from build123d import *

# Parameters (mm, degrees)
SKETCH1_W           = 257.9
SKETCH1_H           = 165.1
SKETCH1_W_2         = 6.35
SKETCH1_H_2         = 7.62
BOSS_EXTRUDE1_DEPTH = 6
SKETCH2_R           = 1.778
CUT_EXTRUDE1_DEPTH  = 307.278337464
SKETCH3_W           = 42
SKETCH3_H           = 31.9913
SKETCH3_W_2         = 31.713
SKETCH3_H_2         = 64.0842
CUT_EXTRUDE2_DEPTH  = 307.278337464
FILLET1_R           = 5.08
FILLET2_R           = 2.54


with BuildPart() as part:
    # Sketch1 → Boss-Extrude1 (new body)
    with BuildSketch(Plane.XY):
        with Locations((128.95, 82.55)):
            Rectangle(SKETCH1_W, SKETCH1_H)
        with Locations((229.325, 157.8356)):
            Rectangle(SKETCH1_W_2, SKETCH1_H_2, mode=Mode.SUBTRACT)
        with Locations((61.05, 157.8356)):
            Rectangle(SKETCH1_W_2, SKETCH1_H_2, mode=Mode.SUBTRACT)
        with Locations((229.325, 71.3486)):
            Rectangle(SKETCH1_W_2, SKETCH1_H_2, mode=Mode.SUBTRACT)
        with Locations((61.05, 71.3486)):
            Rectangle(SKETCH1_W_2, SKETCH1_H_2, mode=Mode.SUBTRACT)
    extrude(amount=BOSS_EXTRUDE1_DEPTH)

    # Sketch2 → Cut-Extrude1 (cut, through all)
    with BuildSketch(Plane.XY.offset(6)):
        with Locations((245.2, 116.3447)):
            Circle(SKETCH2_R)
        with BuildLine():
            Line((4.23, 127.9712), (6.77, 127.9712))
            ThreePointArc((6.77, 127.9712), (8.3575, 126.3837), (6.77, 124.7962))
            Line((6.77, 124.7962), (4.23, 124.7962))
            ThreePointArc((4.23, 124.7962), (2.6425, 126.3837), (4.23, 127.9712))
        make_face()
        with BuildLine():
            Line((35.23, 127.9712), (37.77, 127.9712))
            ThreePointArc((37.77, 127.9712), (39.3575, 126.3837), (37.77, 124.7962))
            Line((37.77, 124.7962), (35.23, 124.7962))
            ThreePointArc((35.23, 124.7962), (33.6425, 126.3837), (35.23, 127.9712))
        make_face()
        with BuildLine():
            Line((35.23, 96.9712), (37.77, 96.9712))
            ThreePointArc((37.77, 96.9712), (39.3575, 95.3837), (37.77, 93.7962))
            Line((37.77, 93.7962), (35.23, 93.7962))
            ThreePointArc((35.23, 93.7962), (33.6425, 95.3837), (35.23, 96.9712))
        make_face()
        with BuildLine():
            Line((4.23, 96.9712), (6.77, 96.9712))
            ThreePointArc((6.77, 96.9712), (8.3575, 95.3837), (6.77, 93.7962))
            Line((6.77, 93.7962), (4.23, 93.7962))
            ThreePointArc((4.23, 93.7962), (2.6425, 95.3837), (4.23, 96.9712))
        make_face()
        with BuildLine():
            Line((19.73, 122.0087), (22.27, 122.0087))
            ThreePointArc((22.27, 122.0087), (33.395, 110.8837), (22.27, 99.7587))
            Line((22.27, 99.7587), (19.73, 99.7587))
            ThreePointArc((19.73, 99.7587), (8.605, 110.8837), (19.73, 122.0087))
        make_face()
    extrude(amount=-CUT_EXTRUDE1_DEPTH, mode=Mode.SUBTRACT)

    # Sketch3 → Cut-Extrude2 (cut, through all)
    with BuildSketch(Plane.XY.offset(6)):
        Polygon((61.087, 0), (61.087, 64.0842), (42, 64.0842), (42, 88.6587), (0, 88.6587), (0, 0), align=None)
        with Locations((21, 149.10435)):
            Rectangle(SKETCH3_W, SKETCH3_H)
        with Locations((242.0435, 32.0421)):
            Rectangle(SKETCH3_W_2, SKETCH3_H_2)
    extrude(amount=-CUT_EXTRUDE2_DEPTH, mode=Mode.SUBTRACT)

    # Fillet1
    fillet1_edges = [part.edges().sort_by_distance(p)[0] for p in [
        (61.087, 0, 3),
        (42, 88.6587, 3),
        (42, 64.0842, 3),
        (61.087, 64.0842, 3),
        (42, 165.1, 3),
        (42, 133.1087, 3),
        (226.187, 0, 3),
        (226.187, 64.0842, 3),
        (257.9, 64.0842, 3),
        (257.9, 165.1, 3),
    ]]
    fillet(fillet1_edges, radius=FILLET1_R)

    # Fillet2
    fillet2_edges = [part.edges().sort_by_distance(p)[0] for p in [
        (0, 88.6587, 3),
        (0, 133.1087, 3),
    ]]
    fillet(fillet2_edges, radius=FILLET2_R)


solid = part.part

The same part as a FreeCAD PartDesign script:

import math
import FreeCAD as App
import Part
import Sketcher

V = App.Vector
Q = App.Units.Quantity


def edges_at(feature, points):
    """Names of the edges that pass closest to the given points."""
    edges = feature.Shape.Edges
    near = lambda p: min(range(len(edges)), key=lambda i: edges[i].distToShape(Part.Vertex(*p))[0])
    return sorted({f"Edge{near(p) + 1}" for p in points})

doc = App.newDocument("Part")
body = doc.addObject("PartDesign::Body", "Body")

# Sketch on XY plane
sketch1 = body.newObject("Sketcher::SketchObject", "Sketch")
sketch1.AttachmentSupport = (doc.getObject("XY_Plane"), [""])
sketch1.MapMode = "FlatFace"
sketch1.addGeometry([
    Part.LineSegment(V(0, 165, 0), V(0, 0, 0)),  # 0
    Part.LineSegment(V(0, 0, 0), V(258, 0, 0)),  # 1
    Part.LineSegment(V(258, 0, 0), V(258, 165, 0)),  # 2
    Part.LineSegment(V(258, 165, 0), V(0, 165, 0)),  # 3
    Part.LineSegment(V(64, 68, 0), V(58, 68, 0)),  # 4
    Part.LineSegment(V(58, 68, 0), V(58, 75, 0)),  # 5
    Part.LineSegment(V(58, 75, 0), V(64, 75, 0)),  # 6
    Part.LineSegment(V(64, 75, 0), V(64, 68, 0)),  # 7
    Part.LineSegment(V(232, 68, 0), V(226, 68, 0)),  # 8
    Part.LineSegment(V(226, 68, 0), V(226, 75, 0)),  # 9
    Part.LineSegment(V(226, 75, 0), V(232, 75, 0)),  # 10
    Part.LineSegment(V(232, 75, 0), V(232, 68, 0)),  # 11
    Part.LineSegment(V(64, 154, 0), V(58, 154, 0)),  # 12
    Part.LineSegment(V(58, 154, 0), V(58, 162, 0)),  # 13
    Part.LineSegment(V(58, 162, 0), V(64, 162, 0)),  # 14
    Part.LineSegment(V(64, 162, 0), V(64, 154, 0)),  # 15
    Part.LineSegment(V(232, 154, 0), V(226, 154, 0)),  # 16
    Part.LineSegment(V(226, 154, 0), V(226, 162, 0)),  # 17
    Part.LineSegment(V(226, 162, 0), V(232, 162, 0)),  # 18
    Part.LineSegment(V(232, 162, 0), V(232, 154, 0)),  # 19
], False)
sketch1.addConstraint([
    Sketcher.Constraint("Coincident", 0, 2, 1, 1),
    Sketcher.Constraint("Coincident", 1, 2, 2, 1),
    Sketcher.Constraint("Coincident", 2, 2, 3, 1),
    Sketcher.Constraint("Coincident", 3, 2, 0, 1),
    Sketcher.Constraint("Coincident", 4, 2, 5, 1),
    Sketcher.Constraint("Coincident", 5, 2, 6, 1),
    Sketcher.Constraint("Coincident", 6, 2, 7, 1),
    Sketcher.Constraint("Coincident", 7, 2, 4, 1),
    Sketcher.Constraint("Coincident", 8, 2, 9, 1),
    Sketcher.Constraint("Coincident", 9, 2, 10, 1),
    Sketcher.Constraint("Coincident", 10, 2, 11, 1),
    Sketcher.Constraint("Coincident", 11, 2, 8, 1),
    Sketcher.Constraint("Coincident", 12, 2, 13, 1),
    Sketcher.Constraint("Coincident", 13, 2, 14, 1),
    Sketcher.Constraint("Coincident", 14, 2, 15, 1),
    Sketcher.Constraint("Coincident", 15, 2, 12, 1),
    Sketcher.Constraint("Coincident", 16, 2, 17, 1),
    Sketcher.Constraint("Coincident", 17, 2, 18, 1),
    Sketcher.Constraint("Coincident", 18, 2, 19, 1),
    Sketcher.Constraint("Coincident", 19, 2, 16, 1),
    Sketcher.Constraint("Vertical", 0),
    Sketcher.Constraint("Horizontal", 1),
    Sketcher.Constraint("Vertical", 2),
    Sketcher.Constraint("Horizontal", 3),
    Sketcher.Constraint("Horizontal", 4),
    Sketcher.Constraint("Vertical", 5),
    Sketcher.Constraint("Horizontal", 6),
    Sketcher.Constraint("Vertical", 7),
    Sketcher.Constraint("Horizontal", 8),
    Sketcher.Constraint("Vertical", 9),
    Sketcher.Constraint("Horizontal", 10),
    Sketcher.Constraint("Vertical", 11),
    Sketcher.Constraint("Horizontal", 12),
    Sketcher.Constraint("Vertical", 13),
    Sketcher.Constraint("Horizontal", 14),
    Sketcher.Constraint("Vertical", 15),
    Sketcher.Constraint("Horizontal", 16),
    Sketcher.Constraint("Vertical", 17),
    Sketcher.Constraint("Horizontal", 18),
    Sketcher.Constraint("Vertical", 19),
    Sketcher.Constraint("Coincident", 0, 2, -1, 1),
    Sketcher.Constraint("Horizontal", 7, 2, 8, 2),
    Sketcher.Constraint("Horizontal", 6, 2, 9, 2),
    Sketcher.Constraint("Horizontal", 15, 2, 16, 2),
    Sketcher.Constraint("Horizontal", 14, 2, 17, 2),
    Sketcher.Constraint("Vertical", 5, 2, 12, 2),
    Sketcher.Constraint("Vertical", 7, 2, 14, 2),
    Sketcher.Constraint("Vertical", 9, 2, 16, 2),
    Sketcher.Constraint("Vertical", 11, 2, 18, 2),
    Sketcher.Constraint("Equal", 6, 8),
    Sketcher.Constraint("Equal", 11, 13),
    Sketcher.Constraint("DistanceY", 0, 2, 0, 1, Q("6.5 in")),
    Sketcher.Constraint("DistanceY", 5, 1, 5, 2, Q("0.3 in")),
    Sketcher.Constraint("DistanceX", 10, 2, 1, 2, Q("1 in")),
    Sketcher.Constraint("DistanceX", 4, 2, 4, 1, Q("0.25 in")),
    Sketcher.Constraint("DistanceY", -1, 1, 4, 2, Q("2.659 in")),
    Sketcher.Constraint("DistanceY", -1, 1, 12, 2, Q("6.064 in")),
    Sketcher.Constraint("DistanceX", 4, 2, 1, 2, Q("7.875 in")),
    Sketcher.Constraint("DistanceX", 1, 1, 1, 2, 257.9),
])
pad1 = body.newObject("PartDesign::Pad", "Pad")
pad1.Profile = sketch1
pad1.Length = 6

# Sketch on XY plane
sketch2 = body.newObject("Sketcher::SketchObject", "Sketch001")
sketch2.AttachmentSupport = (doc.getObject("XY_Plane"), [""])
sketch2.MapMode = "FlatFace"
sketch2.AttachmentOffset = App.Placement(V(0, 0, 6), App.Rotation())
sketch2.addGeometry([
    Part.Circle(V(245.2, 116.3, 0), V(0, 0, 1), 1.8),  # 0
    Part.LineSegment(V(6.8, 128, 0), V(4.2, 128, 0)),  # 1
    Part.ArcOfCircle(Part.Circle(V(4.2, 126.4, 0), V(0, 0, 1), 1.6), math.radians(90), math.radians(270)),  # 2
    Part.LineSegment(V(4.2, 124.8, 0), V(6.8, 124.8, 0)),  # 3
    Part.ArcOfCircle(Part.Circle(V(6.8, 126.4, 0), V(0, 0, 1), 1.6), math.radians(-90), math.radians(90)),  # 4
    Part.LineSegment(V(37.8, 128, 0), V(35.2, 128, 0)),  # 5
    Part.ArcOfCircle(Part.Circle(V(35.2, 126.4, 0), V(0, 0, 1), 1.6), math.radians(90), math.radians(270)),  # 6
    Part.LineSegment(V(35.2, 124.8, 0), V(37.8, 124.8, 0)),  # 7
    Part.ArcOfCircle(Part.Circle(V(37.8, 126.4, 0), V(0, 0, 1), 1.6), math.radians(-90), math.radians(90)),  # 8
    Part.LineSegment(V(37.8, 97, 0), V(35.2, 97, 0)),  # 9
    Part.ArcOfCircle(Part.Circle(V(35.2, 95.4, 0), V(0, 0, 1), 1.6), math.radians(90), math.radians(270)),  # 10
    Part.LineSegment(V(35.2, 93.8, 0), V(37.8, 93.8, 0)),  # 11
    Part.ArcOfCircle(Part.Circle(V(37.8, 95.4, 0), V(0, 0, 1), 1.6), math.radians(-90), math.radians(90)),  # 12
    Part.LineSegment(V(6.8, 97, 0), V(4.2, 97, 0)),  # 13
    Part.ArcOfCircle(Part.Circle(V(4.2, 95.4, 0), V(0, 0, 1), 1.6), math.radians(90), math.radians(270)),  # 14
    Part.LineSegment(V(4.2, 93.8, 0), V(6.8, 93.8, 0)),  # 15
    Part.ArcOfCircle(Part.Circle(V(6.8, 95.4, 0), V(0, 0, 1), 1.6), math.radians(-90), math.radians(90)),  # 16
    Part.LineSegment(V(22.3, 122, 0), V(19.7, 122, 0)),  # 17
    Part.ArcOfCircle(Part.Circle(V(19.7, 110.9, 0), V(0, 0, 1), 11.1), math.radians(90), math.radians(270)),  # 18
    Part.LineSegment(V(19.7, 99.8, 0), V(22.3, 99.8, 0)),  # 19
    Part.ArcOfCircle(Part.Circle(V(22.3, 110.9, 0), V(0, 0, 1), 11.1), math.radians(-90), math.radians(90)),  # 20
], False)
sketch2.addConstraint([
    Sketcher.Constraint("Tangent", 1, 2, 2, 1),
    Sketcher.Constraint("Tangent", 2, 2, 3, 1),
    Sketcher.Constraint("Tangent", 3, 2, 4, 1),
    Sketcher.Constraint("Tangent", 4, 2, 1, 1),
    Sketcher.Constraint("Tangent", 5, 2, 6, 1),
    Sketcher.Constraint("Tangent", 6, 2, 7, 1),
    Sketcher.Constraint("Tangent", 7, 2, 8, 1),
    Sketcher.Constraint("Tangent", 8, 2, 5, 1),
    Sketcher.Constraint("Tangent", 9, 2, 10, 1),
    Sketcher.Constraint("Tangent", 10, 2, 11, 1),
    Sketcher.Constraint("Tangent", 11, 2, 12, 1),
    Sketcher.Constraint("Tangent", 12, 2, 9, 1),
    Sketcher.Constraint("Tangent", 13, 2, 14, 1),
    Sketcher.Constraint("Tangent", 14, 2, 15, 1),
    Sketcher.Constraint("Tangent", 15, 2, 16, 1),
    Sketcher.Constraint("Tangent", 16, 2, 13, 1),
    Sketcher.Constraint("Tangent", 17, 2, 18, 1),
    Sketcher.Constraint("Tangent", 18, 2, 19, 1),
    Sketcher.Constraint("Tangent", 19, 2, 20, 1),
    Sketcher.Constraint("Tangent", 20, 2, 17, 1),
    Sketcher.Constraint("Horizontal", 1),
    Sketcher.Constraint("Horizontal", 3),
    Sketcher.Constraint("Horizontal", 5),
    Sketcher.Constraint("Horizontal", 7),
    Sketcher.Constraint("Horizontal", 9),
    Sketcher.Constraint("Horizontal", 11),
    Sketcher.Constraint("Horizontal", 13),
    Sketcher.Constraint("Horizontal", 15),
    Sketcher.Constraint("Horizontal", 17),
    Sketcher.Constraint("Horizontal", 19),
    Sketcher.Constraint("Equal", 4, 6),
    Sketcher.Constraint("Equal", 8, 10),
    Sketcher.Constraint("Equal", 12, 14),
    Sketcher.Constraint("Horizontal", 4, 3, 6, 3),
    Sketcher.Constraint("Horizontal", 12, 3, 14, 3),
    Sketcher.Constraint("Vertical", 6, 3, 10, 3),
    Sketcher.Constraint("Vertical", 8, 3, 12, 3),
    Sketcher.Constraint("Vertical", 2, 3, 14, 3),
    Sketcher.Constraint("Vertical", 4, 3, 16, 3),
    Sketcher.Constraint("Equal", 3, 5),
    Sketcher.Constraint("Equal", 15, 17),
    Sketcher.Constraint("Diameter", 0, Q("0.14 in")),
    Sketcher.Constraint("DistanceX", 1, 2, 1, 1, Q("0.1 in")),
    Sketcher.Constraint("Radius", 2, Q("0.0625 in")),
    Sketcher.Constraint("Radius", 18, 11.125),
    Sketcher.Constraint("DistanceY", -1, 1, 0, 3, Q("4.5805 in")),
    Sketcher.Constraint("DistanceY", -1, 1, 18, 3, Q("4.3655 in")),
    Sketcher.Constraint("DistanceX", -1, 1, 0, 3, 245.2),
    Sketcher.Constraint("DistanceX", -1, 1, 2, 3, 4.23),
    Sketcher.Constraint("DistanceY", -1, 1, 2, 3, 126.3837),
    Sketcher.Constraint("DistanceX", -1, 1, 6, 3, 35.23),
    Sketcher.Constraint("DistanceY", -1, 1, 10, 3, 95.3837),
    Sketcher.Constraint("DistanceX", -1, 1, 18, 3, 19.73),
])
pocket1 = body.newObject("PartDesign::Pocket", "Pocket")
pocket1.Profile = sketch2
pocket1.Type = "ThroughAll"

# Sketch on XY plane
sketch3 = body.newObject("Sketcher::SketchObject", "Sketch002")
sketch3.AttachmentSupport = (doc.getObject("XY_Plane"), [""])
sketch3.MapMode = "FlatFace"
sketch3.AttachmentOffset = App.Placement(V(0, 0, 6), App.Rotation())
sketch3.addGeometry([
    Part.LineSegment(V(61, 0, 0), V(61, 64, 0)),  # 0
    Part.LineSegment(V(61, 64, 0), V(42, 64, 0)),  # 1
    Part.LineSegment(V(42, 64, 0), V(42, 89, 0)),  # 2
    Part.LineSegment(V(42, 89, 0), V(0, 89, 0)),  # 3
    Part.LineSegment(V(0, 89, 0), V(0, 0, 0)),  # 4
    Part.LineSegment(V(0, 0, 0), V(61, 0, 0)),  # 5
    Part.LineSegment(V(0, 165, 0), V(0, 133, 0)),  # 6
    Part.LineSegment(V(0, 133, 0), V(42, 133, 0)),  # 7
    Part.LineSegment(V(42, 133, 0), V(42, 165, 0)),  # 8
    Part.LineSegment(V(42, 165, 0), V(0, 165, 0)),  # 9
    Part.LineSegment(V(226, 64, 0), V(226, 0, 0)),  # 10
    Part.LineSegment(V(226, 0, 0), V(258, 0, 0)),  # 11
    Part.LineSegment(V(258, 0, 0), V(258, 64, 0)),  # 12
    Part.LineSegment(V(258, 64, 0), V(226, 64, 0)),  # 13
], False)
sketch3.addConstraint([
    Sketcher.Constraint("Coincident", 0, 2, 1, 1),
    Sketcher.Constraint("Coincident", 1, 2, 2, 1),
    Sketcher.Constraint("Coincident", 2, 2, 3, 1),
    Sketcher.Constraint("Coincident", 3, 2, 4, 1),
    Sketcher.Constraint("Coincident", 4, 2, 5, 1),
    Sketcher.Constraint("Coincident", 5, 2, 0, 1),
    Sketcher.Constraint("Coincident", 6, 2, 7, 1),
    Sketcher.Constraint("Coincident", 7, 2, 8, 1),
    Sketcher.Constraint("Coincident", 8, 2, 9, 1),
    Sketcher.Constraint("Coincident", 9, 2, 6, 1),
    Sketcher.Constraint("Coincident", 10, 2, 11, 1),
    Sketcher.Constraint("Coincident", 11, 2, 12, 1),
    Sketcher.Constraint("Coincident", 12, 2, 13, 1),
    Sketcher.Constraint("Coincident", 13, 2, 10, 1),
    Sketcher.Constraint("Vertical", 0),
    Sketcher.Constraint("Horizontal", 1),
    Sketcher.Constraint("Vertical", 2),
    Sketcher.Constraint("Horizontal", 3),
    Sketcher.Constraint("Vertical", 4),
    Sketcher.Constraint("Horizontal", 5),
    Sketcher.Constraint("Vertical", 6),
    Sketcher.Constraint("Horizontal", 7),
    Sketcher.Constraint("Vertical", 8),
    Sketcher.Constraint("Horizontal", 9),
    Sketcher.Constraint("Vertical", 10),
    Sketcher.Constraint("Horizontal", 11),
    Sketcher.Constraint("Vertical", 12),
    Sketcher.Constraint("Horizontal", 13),
    Sketcher.Constraint("Coincident", 4, 2, -1, 1),
    Sketcher.Constraint("PointOnObject", 6, 2, -2),
    Sketcher.Constraint("PointOnObject", 10, 2, -1),
    Sketcher.Constraint("Horizontal", 1, 2, 12, 2),
    Sketcher.Constraint("Vertical", 2, 2, 7, 2),
    Sketcher.Constraint("DistanceY", -1, 1, 8, 2, Q("6.5 in")),
    Sketcher.Constraint("DistanceX", 5, 2, 10, 2, Q("6.5 in")),
    Sketcher.Constraint("DistanceX", 1, 2, 11, 2, Q("8.5 in")),
    Sketcher.Constraint("DistanceX", 5, 1, 5, 2, Q("2.405 in")),
    Sketcher.Constraint("DistanceY", 0, 1, 0, 2, Q("2.523 in")),
    Sketcher.Constraint("DistanceY", 3, 2, 6, 2, Q("1.75 in")),
    Sketcher.Constraint("DistanceY", 2, 1, 2, 2, Q("0.9675 in")),
    Sketcher.Constraint("DistanceX", 1, 2, 1, 1, 19.087),
])
pocket2 = body.newObject("PartDesign::Pocket", "Pocket001")
pocket2.Profile = sketch3
pocket2.Type = "ThroughAll"
doc.recompute()

fillet = body.newObject("PartDesign::Fillet", "Fillet")
fillet.Base = (pocket2, edges_at(pocket2, [
    (61.087, 0, 3),
    (42, 88.659, 3),
    (42, 64.084, 3),
    (61.087, 64.084, 3),
    (42, 165.1, 3),
    (42, 133.109, 3),
    (226.187, 0, 3),
    (226.187, 64.084, 3),
    (257.9, 64.084, 3),
    (257.9, 165.1, 3),
]))
fillet.Radius = Q("0.2 in")
doc.recompute()

fillet2 = body.newObject("PartDesign::Fillet", "Fillet001")
fillet2.Base = (fillet, edges_at(fillet, [(0, 88.659, 3), (0, 133.109, 3)]))
fillet2.Radius = Q("0.1 in")

doc.recompute()
